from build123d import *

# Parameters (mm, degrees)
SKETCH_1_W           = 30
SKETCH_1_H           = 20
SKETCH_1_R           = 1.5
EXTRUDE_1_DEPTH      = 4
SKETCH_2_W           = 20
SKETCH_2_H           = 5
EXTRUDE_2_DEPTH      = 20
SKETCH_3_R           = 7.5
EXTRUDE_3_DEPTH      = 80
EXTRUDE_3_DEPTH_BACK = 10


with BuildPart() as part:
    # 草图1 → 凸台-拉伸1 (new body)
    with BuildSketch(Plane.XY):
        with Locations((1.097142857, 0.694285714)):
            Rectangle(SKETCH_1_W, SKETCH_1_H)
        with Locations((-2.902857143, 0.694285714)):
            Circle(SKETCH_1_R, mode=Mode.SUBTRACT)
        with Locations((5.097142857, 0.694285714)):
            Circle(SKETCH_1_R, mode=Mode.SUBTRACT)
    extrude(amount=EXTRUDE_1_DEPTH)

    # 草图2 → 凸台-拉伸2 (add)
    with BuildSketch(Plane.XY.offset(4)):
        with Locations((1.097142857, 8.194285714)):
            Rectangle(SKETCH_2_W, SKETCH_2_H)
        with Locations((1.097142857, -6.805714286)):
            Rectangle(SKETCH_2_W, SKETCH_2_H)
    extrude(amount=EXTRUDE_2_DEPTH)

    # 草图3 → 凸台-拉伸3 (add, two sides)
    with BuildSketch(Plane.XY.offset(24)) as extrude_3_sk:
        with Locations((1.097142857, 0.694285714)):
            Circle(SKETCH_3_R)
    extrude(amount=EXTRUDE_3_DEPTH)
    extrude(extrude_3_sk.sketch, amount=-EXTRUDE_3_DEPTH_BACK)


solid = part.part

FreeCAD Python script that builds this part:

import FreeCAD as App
import Part
import Sketcher


def add_polygon(sketch, points):
    """Adds a closed chain of lines whose ends are joined by coincident constraints."""
    first, n = sketch.GeometryCount, len(points)
    for a, b in zip(points, points[1:] + points[:1]):
        sketch.addGeometry(Part.LineSegment(App.Vector(*a, 0), App.Vector(*b, 0)), False)
    for i in range(n):
        sketch.addConstraint(Sketcher.Constraint("Coincident", first + i, 2, first + (i + 1) % n, 1))

doc = App.newDocument("Part")
body = doc.addObject("PartDesign::Body", "Body")

# Sketch on XY plane
sketch1 = body.newObject("Sketcher::SketchObject", "Sketch")
sketch1.AttachmentSupport = (doc.getObject("XY_Plane"), [""])
sketch1.MapMode = "FlatFace"
add_polygon(sketch1, [(-13.902857, 10.694286), (-13.902857, -9.305714), (16.097143, -9.305714), (16.097143, 10.694286)])  # lines 0-3
sketch1.addGeometry(Part.Circle(App.Vector(-2.902857, 0.694286, 0), App.Vector(0, 0, 1), 1.5), False)  # 4
sketch1.addGeometry(Part.Circle(App.Vector(5.097143, 0.694286, 0), App.Vector(0, 0, 1), 1.5), False)  # 5
sketch1.addConstraint(Sketcher.Constraint("Vertical", 0))
sketch1.addConstraint(Sketcher.Constraint("Horizontal", 1))
sketch1.addConstraint(Sketcher.Constraint("Vertical", 2))
sketch1.addConstraint(Sketcher.Constraint("Horizontal", 3))
sketch1.addConstraint(Sketcher.Constraint("Equal", 4, 5))
sketch1.addConstraint(Sketcher.Constraint("Horizontal", 4, 3, 5, 3))
sketch1.addConstraint(Sketcher.Constraint("Diameter", 4, 3.0))
sketch1.addConstraint(Sketcher.Constraint("DistanceX", 1, 1, 1, 2, 30.0))
sketch1.addConstraint(Sketcher.Constraint("DistanceY", 0, 2, 0, 1, 20.0))
sketch1.addConstraint(Sketcher.Constraint("DistanceX", 4, 3, 5, 3, 8.0))
sketch1.addConstraint(Sketcher.Constraint("DistanceX", 0, 2, 4, 3, 11.0))
sketch1.addConstraint(Sketcher.Constraint("DistanceY", 0, 2, 4, 3, 10.0))
sketch1.addConstraint(Sketcher.Constraint("DistanceX", 4, 3, -1, 1, 2.902857))
sketch1.addConstraint(Sketcher.Constraint("DistanceY", -1, 1, 4, 3, 0.694286))
pad1 = body.newObject("PartDesign::Pad", "Pad")
pad1.Profile = sketch1
pad1.Length = 4

# Sketch on XY plane
sketch2 = body.newObject("Sketcher::SketchObject", "Sketch001")
sketch2.AttachmentSupport = (doc.getObject("XY_Plane"), [""])
sketch2.MapMode = "FlatFace"
sketch2.AttachmentOffset = App.Placement(App.Vector(0, 0, 4), App.Rotation())
add_polygon(sketch2, [(-8.902857, 10.694286), (-8.902857, 5.694286), (11.097143, 5.694286), (11.097143, 10.694286)])  # lines 0-3
add_polygon(sketch2, [(-8.902857, -4.305714), (-8.902857, -9.305714), (11.097143, -9.305714), (11.097143, -4.305714)])  # lines 4-7
sketch2.addConstraint(Sketcher.Constraint("Vertical", 0))
sketch2.addConstraint(Sketcher.Constraint("Horizontal", 1))
sketch2.addConstraint(Sketcher.Constraint("Vertical", 2))
sketch2.addConstraint(Sketcher.Constraint("Horizontal", 3))
sketch2.addConstraint(Sketcher.Constraint("Vertical", 4))
sketch2.addConstraint(Sketcher.Constraint("Horizontal", 5))
sketch2.addConstraint(Sketcher.Constraint("Vertical", 6))
sketch2.addConstraint(Sketcher.Constraint("Horizontal", 7))
sketch2.addConstraint(Sketcher.Constraint("Vertical", 3, 2, 4, 2))
sketch2.addConstraint(Sketcher.Constraint("Vertical", 2, 2, 5, 2))
sketch2.addConstraint(Sketcher.Constraint("Equal", 2, 4))
sketch2.addConstraint(Sketcher.Constraint("DistanceX", 1, 1, 1, 2, 20.0))
sketch2.addConstraint(Sketcher.Constraint("DistanceY", 0, 2, 0, 1, 5.0))
sketch2.addConstraint(Sketcher.Constraint("DistanceY", 4, 2, 0, 2, 15.0))
sketch2.addConstraint(Sketcher.Constraint("DistanceX", 0, 2, -1, 1, 8.902857))
sketch2.addConstraint(Sketcher.Constraint("DistanceY", -1, 1, 0, 2, 5.694286))
pad2 = body.newObject("PartDesign::Pad", "Pad001")
pad2.Profile = sketch2
pad2.Length = 20

# Sketch on XY plane
sketch3 = body.newObject("Sketcher::SketchObject", "Sketch002")
sketch3.AttachmentSupport = (doc.getObject("XY_Plane"), [""])
sketch3.MapMode = "FlatFace"
sketch3.AttachmentOffset = App.Placement(App.Vector(0, 0, 24), App.Rotation())
sketch3.addGeometry(Part.Circle(App.Vector(1.097143, 0.694286, 0), App.Vector(0, 0, 1), 7.5), False)
sketch3.addConstraint(Sketcher.Constraint("Diameter", 0, 15.0))
sketch3.addConstraint(Sketcher.Constraint("DistanceX", -1, 1, 0, 3, 1.097143))
sketch3.addConstraint(Sketcher.Constraint("DistanceY", -1, 1, 0, 3, 0.694286))
pad3 = body.newObject("PartDesign::Pad", "Pad002")
pad3.Profile = sketch3
pad3.Type = "TwoLengths"
pad3.Length = 80
pad3.Length2 = 10

doc.recompute()
